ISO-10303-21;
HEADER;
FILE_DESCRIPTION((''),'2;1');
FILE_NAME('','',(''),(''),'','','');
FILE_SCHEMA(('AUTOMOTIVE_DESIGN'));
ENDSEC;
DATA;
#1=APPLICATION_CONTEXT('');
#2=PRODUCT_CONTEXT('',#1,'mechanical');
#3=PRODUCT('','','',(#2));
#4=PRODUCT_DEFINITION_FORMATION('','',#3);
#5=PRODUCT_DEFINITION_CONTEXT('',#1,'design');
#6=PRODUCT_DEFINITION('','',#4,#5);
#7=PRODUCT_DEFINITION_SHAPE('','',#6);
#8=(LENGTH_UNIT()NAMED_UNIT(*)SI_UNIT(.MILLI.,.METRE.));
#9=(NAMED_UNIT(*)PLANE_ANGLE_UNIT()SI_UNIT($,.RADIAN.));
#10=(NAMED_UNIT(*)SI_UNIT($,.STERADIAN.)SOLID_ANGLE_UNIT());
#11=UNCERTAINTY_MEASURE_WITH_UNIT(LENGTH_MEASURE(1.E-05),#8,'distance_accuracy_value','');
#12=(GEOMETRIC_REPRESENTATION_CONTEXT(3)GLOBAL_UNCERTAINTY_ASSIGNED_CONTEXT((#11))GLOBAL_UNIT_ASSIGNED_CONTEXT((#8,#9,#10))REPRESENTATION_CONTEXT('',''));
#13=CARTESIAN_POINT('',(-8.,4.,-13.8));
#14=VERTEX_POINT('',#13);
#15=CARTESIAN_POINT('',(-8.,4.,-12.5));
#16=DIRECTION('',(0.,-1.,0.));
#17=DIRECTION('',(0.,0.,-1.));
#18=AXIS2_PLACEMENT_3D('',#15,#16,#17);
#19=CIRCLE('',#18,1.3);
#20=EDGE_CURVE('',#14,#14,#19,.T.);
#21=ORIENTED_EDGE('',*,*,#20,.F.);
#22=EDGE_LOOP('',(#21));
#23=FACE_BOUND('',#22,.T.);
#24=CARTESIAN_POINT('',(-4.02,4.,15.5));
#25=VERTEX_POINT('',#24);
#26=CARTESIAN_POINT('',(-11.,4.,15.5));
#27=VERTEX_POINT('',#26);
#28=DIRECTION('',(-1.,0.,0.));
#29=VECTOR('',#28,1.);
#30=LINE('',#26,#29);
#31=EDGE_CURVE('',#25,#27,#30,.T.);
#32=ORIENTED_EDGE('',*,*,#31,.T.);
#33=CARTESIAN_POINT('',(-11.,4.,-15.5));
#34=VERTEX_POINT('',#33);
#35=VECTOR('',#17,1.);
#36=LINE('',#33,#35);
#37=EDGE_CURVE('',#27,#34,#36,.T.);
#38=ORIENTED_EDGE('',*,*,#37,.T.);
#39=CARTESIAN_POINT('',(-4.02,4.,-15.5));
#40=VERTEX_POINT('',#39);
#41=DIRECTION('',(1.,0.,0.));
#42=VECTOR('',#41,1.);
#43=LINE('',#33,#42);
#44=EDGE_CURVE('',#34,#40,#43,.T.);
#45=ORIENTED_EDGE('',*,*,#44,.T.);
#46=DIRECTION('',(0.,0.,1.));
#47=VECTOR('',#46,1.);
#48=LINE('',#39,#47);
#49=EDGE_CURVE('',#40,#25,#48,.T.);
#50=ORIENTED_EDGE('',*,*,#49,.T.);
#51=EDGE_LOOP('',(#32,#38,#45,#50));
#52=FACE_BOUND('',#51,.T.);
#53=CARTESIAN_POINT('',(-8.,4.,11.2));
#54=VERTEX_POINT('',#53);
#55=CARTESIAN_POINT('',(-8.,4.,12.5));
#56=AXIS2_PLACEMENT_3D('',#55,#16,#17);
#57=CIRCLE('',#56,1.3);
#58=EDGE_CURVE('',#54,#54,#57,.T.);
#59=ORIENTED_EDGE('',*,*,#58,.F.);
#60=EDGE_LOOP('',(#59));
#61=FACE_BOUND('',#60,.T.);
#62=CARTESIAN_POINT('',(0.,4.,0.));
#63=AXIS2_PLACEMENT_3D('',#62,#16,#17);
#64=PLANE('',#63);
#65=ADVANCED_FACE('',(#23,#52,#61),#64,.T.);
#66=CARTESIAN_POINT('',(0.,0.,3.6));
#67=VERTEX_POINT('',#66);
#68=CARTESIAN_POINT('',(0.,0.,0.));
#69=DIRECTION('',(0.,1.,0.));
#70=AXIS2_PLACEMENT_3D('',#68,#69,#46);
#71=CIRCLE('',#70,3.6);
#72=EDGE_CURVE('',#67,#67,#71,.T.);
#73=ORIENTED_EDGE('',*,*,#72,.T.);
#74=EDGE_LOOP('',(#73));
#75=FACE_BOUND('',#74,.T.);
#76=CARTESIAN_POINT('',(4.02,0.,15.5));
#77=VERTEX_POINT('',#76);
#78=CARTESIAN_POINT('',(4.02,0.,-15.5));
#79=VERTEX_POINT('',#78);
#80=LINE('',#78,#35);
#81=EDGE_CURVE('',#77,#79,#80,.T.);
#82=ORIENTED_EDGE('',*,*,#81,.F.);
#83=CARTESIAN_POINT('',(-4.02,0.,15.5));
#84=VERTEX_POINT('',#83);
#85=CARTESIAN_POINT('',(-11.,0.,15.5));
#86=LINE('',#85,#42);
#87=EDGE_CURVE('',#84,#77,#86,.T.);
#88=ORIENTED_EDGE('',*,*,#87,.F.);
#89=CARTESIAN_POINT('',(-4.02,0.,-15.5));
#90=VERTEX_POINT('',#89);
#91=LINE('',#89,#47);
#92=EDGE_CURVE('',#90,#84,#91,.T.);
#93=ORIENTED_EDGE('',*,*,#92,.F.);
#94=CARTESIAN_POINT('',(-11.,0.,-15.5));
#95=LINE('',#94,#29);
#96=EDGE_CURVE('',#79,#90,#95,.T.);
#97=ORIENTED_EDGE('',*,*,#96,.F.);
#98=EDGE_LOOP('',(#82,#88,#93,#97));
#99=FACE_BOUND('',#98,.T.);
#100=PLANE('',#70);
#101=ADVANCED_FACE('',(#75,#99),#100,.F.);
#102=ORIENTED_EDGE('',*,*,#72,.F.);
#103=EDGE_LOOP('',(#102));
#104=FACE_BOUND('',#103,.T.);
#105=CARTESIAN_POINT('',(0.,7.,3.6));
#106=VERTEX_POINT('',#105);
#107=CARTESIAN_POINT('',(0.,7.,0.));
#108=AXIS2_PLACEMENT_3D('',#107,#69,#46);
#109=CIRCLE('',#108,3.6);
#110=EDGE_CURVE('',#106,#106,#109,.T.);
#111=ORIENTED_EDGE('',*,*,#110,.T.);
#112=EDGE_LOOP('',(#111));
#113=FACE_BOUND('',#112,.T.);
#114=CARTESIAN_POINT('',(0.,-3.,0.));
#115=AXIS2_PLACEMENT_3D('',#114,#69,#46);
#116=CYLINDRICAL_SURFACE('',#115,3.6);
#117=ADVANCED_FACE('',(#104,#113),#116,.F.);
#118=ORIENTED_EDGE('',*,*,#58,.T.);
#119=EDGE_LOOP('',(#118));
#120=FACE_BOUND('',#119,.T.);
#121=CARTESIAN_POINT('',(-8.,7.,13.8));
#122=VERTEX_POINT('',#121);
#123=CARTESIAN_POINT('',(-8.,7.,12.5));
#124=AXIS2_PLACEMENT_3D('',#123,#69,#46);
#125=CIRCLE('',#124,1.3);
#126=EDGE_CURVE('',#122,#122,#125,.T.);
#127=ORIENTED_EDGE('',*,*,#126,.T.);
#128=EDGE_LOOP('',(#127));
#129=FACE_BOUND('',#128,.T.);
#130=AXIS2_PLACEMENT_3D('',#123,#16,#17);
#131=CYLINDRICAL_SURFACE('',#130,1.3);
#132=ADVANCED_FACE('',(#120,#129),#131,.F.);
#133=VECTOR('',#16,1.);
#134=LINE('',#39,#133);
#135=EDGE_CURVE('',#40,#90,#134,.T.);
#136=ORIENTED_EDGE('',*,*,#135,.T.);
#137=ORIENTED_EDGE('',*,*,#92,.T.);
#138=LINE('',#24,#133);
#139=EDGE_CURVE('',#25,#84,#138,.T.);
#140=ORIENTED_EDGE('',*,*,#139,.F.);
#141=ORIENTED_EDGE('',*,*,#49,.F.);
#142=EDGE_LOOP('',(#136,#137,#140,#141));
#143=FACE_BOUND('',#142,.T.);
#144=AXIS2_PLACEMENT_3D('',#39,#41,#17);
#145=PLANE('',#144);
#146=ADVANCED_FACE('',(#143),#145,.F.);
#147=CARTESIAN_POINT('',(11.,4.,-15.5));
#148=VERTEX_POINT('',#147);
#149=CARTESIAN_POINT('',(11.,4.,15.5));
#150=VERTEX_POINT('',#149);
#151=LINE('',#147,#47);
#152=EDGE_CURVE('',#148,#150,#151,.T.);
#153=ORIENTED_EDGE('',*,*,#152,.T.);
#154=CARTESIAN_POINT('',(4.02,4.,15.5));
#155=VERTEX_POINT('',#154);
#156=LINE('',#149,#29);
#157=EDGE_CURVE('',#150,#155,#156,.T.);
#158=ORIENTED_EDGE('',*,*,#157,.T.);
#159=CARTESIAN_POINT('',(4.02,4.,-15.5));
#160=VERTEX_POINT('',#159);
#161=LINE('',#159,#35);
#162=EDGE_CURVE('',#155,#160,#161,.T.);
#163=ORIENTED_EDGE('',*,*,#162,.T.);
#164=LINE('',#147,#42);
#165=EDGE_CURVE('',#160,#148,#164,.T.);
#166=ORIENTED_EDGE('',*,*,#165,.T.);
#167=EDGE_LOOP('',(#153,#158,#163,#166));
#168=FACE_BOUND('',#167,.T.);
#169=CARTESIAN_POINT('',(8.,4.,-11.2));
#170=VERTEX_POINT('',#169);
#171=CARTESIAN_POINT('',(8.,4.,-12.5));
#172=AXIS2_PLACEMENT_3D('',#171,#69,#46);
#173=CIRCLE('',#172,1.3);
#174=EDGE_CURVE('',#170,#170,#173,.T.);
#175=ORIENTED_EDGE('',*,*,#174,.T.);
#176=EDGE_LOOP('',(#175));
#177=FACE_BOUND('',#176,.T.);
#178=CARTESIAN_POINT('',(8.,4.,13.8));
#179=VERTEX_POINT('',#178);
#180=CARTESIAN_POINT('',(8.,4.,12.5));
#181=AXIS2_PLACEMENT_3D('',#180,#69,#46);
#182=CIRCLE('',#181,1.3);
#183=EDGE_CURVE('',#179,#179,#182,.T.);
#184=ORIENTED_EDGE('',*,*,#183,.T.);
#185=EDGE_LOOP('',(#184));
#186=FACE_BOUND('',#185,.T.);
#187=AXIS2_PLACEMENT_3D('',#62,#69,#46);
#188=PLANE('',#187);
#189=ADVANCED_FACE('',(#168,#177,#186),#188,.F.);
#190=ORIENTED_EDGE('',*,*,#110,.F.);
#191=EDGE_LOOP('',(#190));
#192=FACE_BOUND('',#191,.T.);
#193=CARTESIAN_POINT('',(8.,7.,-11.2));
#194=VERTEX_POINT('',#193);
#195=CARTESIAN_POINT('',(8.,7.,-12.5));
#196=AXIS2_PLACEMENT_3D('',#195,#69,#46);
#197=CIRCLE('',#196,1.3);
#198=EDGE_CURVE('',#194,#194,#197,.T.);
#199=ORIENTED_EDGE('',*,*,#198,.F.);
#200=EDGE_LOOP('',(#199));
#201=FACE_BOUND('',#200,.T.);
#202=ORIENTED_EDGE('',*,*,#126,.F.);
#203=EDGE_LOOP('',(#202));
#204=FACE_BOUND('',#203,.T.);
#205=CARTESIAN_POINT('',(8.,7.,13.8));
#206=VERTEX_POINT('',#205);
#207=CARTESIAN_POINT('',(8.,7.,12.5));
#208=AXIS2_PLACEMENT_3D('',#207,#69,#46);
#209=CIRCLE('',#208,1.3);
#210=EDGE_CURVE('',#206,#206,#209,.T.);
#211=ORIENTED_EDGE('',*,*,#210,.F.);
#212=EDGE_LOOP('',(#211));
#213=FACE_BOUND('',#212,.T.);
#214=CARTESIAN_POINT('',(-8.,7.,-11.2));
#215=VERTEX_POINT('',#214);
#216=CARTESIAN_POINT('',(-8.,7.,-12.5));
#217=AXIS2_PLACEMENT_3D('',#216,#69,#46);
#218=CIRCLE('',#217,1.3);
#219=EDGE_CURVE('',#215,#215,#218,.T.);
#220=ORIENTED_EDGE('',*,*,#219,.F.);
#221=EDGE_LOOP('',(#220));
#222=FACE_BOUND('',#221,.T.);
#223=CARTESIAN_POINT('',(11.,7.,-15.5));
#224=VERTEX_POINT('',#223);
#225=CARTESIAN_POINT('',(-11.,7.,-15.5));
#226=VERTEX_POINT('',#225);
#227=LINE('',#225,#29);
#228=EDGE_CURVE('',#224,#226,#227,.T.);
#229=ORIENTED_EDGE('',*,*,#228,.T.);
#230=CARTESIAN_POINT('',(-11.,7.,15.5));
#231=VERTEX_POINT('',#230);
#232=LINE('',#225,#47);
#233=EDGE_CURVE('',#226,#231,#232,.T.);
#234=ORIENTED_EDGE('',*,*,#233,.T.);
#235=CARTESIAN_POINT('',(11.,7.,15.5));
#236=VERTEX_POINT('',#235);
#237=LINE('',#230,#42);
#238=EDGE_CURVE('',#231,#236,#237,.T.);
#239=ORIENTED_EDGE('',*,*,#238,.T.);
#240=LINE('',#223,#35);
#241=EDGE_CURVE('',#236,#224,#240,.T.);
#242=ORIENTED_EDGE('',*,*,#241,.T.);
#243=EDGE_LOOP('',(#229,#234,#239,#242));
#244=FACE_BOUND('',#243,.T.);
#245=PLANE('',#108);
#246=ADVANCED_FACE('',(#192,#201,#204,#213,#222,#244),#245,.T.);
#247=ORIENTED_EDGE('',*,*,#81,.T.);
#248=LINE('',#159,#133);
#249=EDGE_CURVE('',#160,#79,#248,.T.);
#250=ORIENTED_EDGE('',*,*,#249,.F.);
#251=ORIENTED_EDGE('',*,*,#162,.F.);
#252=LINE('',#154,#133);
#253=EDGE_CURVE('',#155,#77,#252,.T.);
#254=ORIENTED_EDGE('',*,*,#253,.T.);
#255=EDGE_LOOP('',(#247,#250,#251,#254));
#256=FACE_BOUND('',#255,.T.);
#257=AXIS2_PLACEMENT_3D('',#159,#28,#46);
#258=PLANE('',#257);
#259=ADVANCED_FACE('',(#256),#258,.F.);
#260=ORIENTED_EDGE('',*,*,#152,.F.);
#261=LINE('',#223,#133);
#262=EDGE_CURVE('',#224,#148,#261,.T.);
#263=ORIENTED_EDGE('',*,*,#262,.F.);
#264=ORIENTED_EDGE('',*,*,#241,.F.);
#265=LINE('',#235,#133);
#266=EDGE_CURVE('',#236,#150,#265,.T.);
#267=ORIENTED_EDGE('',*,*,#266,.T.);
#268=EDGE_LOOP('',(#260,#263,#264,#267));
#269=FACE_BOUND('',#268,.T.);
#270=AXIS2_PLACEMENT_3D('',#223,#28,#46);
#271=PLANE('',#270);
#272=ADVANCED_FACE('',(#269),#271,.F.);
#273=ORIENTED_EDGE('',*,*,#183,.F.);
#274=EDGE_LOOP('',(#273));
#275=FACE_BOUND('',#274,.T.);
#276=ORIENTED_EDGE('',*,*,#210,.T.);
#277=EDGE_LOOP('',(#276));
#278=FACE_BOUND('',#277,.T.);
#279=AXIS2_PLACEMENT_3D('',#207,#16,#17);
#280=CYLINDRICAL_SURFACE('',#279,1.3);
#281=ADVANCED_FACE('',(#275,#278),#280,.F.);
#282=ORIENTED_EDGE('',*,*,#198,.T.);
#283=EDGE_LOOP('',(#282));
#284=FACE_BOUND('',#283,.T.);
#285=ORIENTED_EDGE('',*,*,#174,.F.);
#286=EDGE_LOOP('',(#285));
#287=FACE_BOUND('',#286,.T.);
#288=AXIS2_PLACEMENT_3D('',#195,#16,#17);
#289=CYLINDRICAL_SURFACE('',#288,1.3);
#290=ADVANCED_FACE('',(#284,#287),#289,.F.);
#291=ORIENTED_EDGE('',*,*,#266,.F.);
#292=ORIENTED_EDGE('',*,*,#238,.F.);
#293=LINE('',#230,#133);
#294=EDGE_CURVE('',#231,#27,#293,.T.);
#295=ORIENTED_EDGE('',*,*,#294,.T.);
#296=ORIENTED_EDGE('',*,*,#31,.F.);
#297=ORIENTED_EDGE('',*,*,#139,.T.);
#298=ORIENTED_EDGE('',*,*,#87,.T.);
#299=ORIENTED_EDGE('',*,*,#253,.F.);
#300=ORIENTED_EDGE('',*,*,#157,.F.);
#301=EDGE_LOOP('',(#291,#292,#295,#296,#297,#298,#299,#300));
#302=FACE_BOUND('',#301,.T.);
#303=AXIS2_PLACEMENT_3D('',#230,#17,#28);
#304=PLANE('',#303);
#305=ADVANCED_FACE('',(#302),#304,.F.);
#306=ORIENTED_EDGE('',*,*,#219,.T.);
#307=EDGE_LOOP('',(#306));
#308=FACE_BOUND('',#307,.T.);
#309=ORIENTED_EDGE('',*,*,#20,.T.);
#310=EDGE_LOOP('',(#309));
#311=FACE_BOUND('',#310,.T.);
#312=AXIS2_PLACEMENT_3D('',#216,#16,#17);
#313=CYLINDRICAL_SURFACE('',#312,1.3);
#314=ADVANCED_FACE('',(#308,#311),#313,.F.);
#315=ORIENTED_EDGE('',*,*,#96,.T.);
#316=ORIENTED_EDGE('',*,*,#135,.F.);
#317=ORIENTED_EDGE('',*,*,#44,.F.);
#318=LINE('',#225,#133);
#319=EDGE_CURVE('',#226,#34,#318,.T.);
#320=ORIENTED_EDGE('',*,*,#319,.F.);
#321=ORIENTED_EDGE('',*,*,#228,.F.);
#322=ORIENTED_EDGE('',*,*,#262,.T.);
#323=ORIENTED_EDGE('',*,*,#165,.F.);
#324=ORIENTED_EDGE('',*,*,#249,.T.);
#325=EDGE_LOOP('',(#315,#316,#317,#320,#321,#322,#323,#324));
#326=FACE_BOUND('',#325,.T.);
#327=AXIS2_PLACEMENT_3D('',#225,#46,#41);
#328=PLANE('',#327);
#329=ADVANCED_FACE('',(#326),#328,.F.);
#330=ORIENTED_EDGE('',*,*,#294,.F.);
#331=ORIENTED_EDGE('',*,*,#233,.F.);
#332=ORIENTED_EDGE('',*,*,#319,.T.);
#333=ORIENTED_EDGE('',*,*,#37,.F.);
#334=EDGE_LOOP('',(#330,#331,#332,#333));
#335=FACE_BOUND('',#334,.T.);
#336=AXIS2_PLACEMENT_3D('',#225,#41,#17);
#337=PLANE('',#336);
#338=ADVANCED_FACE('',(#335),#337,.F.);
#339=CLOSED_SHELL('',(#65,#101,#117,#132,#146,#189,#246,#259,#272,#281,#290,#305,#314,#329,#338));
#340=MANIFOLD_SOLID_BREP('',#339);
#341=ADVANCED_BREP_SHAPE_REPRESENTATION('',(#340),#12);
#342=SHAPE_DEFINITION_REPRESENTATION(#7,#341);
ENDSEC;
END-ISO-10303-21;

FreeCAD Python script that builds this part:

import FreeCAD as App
import Part
import Sketcher

doc = App.newDocument("Part")
body = doc.addObject("PartDesign::Body", "Body")

sketch1 = body.newObject("Sketcher::SketchObject", "Sketch")
sketch1.AttachmentSupport = (doc.getObject("XZ_Plane"), [""])
sketch1.MapMode = "FlatFace"
sketch1.addGeometry([
    Part.LineSegment(App.Vector(-11, -15.5, 0), App.Vector(-11, 15.5, 0)),
    Part.LineSegment(App.Vector(-11, 15.5, 0), App.Vector(11, 15.5, 0)),
    Part.LineSegment(App.Vector(11, 15.5, 0), App.Vector(11, -15.5, 0)),
    Part.LineSegment(App.Vector(11, -15.5, 0), App.Vector(-11, -15.5, 0)),
    Part.Circle(App.Vector(-8, 12.5, 0), App.Vector(0, 0, 1), 1.3),
    Part.Circle(App.Vector(8, 12.5, 0), App.Vector(0, 0, 1), 1.3),
    Part.Circle(App.Vector(-8, -12.5, 0), App.Vector(0, 0, 1), 1.3),
    Part.Circle(App.Vector(8, -12.5, 0), App.Vector(0, 0, 1), 1.3),
], False)
sketch1.addConstraint([
    Sketcher.Constraint("Coincident", 0, 2, 1, 1),
    Sketcher.Constraint("Coincident", 1, 2, 2, 1),
    Sketcher.Constraint("Coincident", 2, 2, 3, 1),
    Sketcher.Constraint("Coincident", 3, 2, 0, 1),
    Sketcher.Constraint("Vertical", 0),
    Sketcher.Constraint("Horizontal", 1),
    Sketcher.Constraint("Vertical", 2),
    Sketcher.Constraint("Horizontal", 3),
    Sketcher.Constraint("Equal", 4, 5),
    Sketcher.Constraint("Equal", 5, 6),
    Sketcher.Constraint("Equal", 6, 7),
    Sketcher.Constraint("Symmetric", 5, 3, 6, 3, -1, 1),
    Sketcher.Constraint("Symmetric", 4, 3, 7, 3, -1, 1),
    Sketcher.Constraint("Symmetric", 0, 2, 2, 2, -1, 1),
    Sketcher.Constraint("Symmetric", 4, 3, 5, 3, -2),
    Sketcher.Constraint("Diameter", 4, 2.6),
    Sketcher.Constraint("DistanceX", 1, 1, 1, 2, 22.0),
    Sketcher.Constraint("DistanceY", 0, 1, 0, 2, 31.0),
    Sketcher.Constraint("DistanceX", 4, 3, -1, 1, 8.0),
    Sketcher.Constraint("DistanceY", 6, 3, 4, 3, 25.0),
])
pad1 = body.newObject("PartDesign::Pad", "Pad")
pad1.Profile = sketch1
pad1.Length = 7
pad1.Reversed = True

sketch2 = body.newObject("Sketcher::SketchObject", "Sketch001")
sketch2.AttachmentSupport = (doc.getObject("XZ_Plane"), [""])
sketch2.MapMode = "FlatFace"
sketch2.AttachmentOffset = App.Placement(App.Vector(0, 0, -7), App.Rotation())
sketch2.addGeometry(Part.Circle(App.Vector(0, 0, 0), App.Vector(0, 0, 1), 3.6), False)
sketch2.addConstraint([
    Sketcher.Constraint("Coincident", 0, 3, -1, 1),
    Sketcher.Constraint("Diameter", 0, 7.2),
])
pocket1 = body.newObject("PartDesign::Pocket", "Pocket")
pocket1.Profile = sketch2
pocket1.Length = 10
pocket1.Reversed = True

sketch3 = body.newObject("Sketcher::SketchObject", "Sketch002")
sketch3.AttachmentSupport = (doc.getObject("XZ_Plane"), [""])
sketch3.MapMode = "FlatFace"
sketch3.addGeometry([
    Part.LineSegment(App.Vector(4.02, 15.5, 0), App.Vector(4.02, -15.5, 0)),
    Part.LineSegment(App.Vector(4.02, -15.5, 0), App.Vector(11, -15.5, 0)),
    Part.LineSegment(App.Vector(11, -15.5, 0), App.Vector(11, 15.5, 0)),
    Part.LineSegment(App.Vector(11, 15.5, 0), App.Vector(4.02, 15.5, 0)),
    Part.LineSegment(App.Vector(-11, 15.5, 0), App.Vector(-11, -15.5, 0)),
    Part.LineSegment(App.Vector(-11, -15.5, 0), App.Vector(-4.02, -15.5, 0)),
    Part.LineSegment(App.Vector(-4.02, -15.5, 0), App.Vector(-4.02, 15.5, 0)),
    Part.LineSegment(App.Vector(-4.02, 15.5, 0), App.Vector(-11, 15.5, 0)),
], False)
sketch3.addConstraint([
    Sketcher.Constraint("Coincident", 0, 2, 1, 1),
    Sketcher.Constraint("Coincident", 1, 2, 2, 1),
    Sketcher.Constraint("Coincident", 2, 2, 3, 1),
    Sketcher.Constraint("Coincident", 3, 2, 0, 1),
    Sketcher.Constraint("Coincident", 4, 2, 5, 1),
    Sketcher.Constraint("Coincident", 5, 2, 6, 1),
    Sketcher.Constraint("Coincident", 6, 2, 7, 1),
    Sketcher.Constraint("Coincident", 7, 2, 4, 1),
    Sketcher.Constraint("Vertical", 0),
    Sketcher.Constraint("Horizontal", 1),
    Sketcher.Constraint("Vertical", 2),
    Sketcher.Constraint("Horizontal", 3),
    Sketcher.Constraint("Vertical", 4),
    Sketcher.Constraint("Horizontal", 5),
    Sketcher.Constraint("Vertical", 6),
    Sketcher.Constraint("Horizontal", 7),
    Sketcher.Constraint("Symmetric", 2, 2, 4, 2, -1, 1),
    Sketcher.Constraint("Symmetric", 0, 2, 6, 2, -1, 1),
    Sketcher.Constraint("Horizontal", 1, 2, 4, 2),
    Sketcher.Constraint("DistanceY", 0, 2, 0, 1, 31.0),
    Sketcher.Constraint("DistanceX", -1, 1, 1, 2, 11.0),
    Sketcher.Constraint("DistanceX", 1, 1, 1, 2, 6.98),
])
pocket2 = body.newObject("PartDesign::Pocket", "Pocket001")
pocket2.Profile = sketch3
pocket2.Length = 4

doc.recompute()
